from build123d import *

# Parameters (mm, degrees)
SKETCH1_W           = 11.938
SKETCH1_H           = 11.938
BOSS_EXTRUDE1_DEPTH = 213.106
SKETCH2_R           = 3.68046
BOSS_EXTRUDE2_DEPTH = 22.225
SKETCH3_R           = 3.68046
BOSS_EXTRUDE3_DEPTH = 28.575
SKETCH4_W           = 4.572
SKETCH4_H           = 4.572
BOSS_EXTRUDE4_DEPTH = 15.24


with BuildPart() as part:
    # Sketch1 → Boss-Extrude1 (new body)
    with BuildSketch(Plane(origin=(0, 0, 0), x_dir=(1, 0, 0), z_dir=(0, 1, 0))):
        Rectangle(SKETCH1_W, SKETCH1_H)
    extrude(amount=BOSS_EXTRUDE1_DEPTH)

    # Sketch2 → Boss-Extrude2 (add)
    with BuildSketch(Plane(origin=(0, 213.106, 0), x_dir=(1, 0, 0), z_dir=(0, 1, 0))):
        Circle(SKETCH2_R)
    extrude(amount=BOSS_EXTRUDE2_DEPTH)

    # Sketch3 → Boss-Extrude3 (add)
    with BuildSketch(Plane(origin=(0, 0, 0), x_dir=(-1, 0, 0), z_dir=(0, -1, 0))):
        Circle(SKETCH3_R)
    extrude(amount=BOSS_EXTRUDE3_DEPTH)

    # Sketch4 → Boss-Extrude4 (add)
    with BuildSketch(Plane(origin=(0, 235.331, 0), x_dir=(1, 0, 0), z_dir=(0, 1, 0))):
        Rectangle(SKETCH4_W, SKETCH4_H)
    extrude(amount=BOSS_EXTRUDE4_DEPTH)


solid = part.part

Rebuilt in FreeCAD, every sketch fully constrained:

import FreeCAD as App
import Part
import Sketcher
from FreeCAD import Vector
Q = App.Units.Quantity

doc = App.newDocument("Part")
params = doc.addObject("Spreadsheet::Sheet", "Params")
for row, (alias, value) in enumerate([
    ("sketch1_width", "0.47 in"),
    ("pad1_length", "8.39 in"),
    ("pad2_length", "0.875 in"),
    ("pad3_length", "1.125 in"),
    ("sketch4_width", "0.18 in"),
    ("pad4_length", "0.6 in"),
], start=1):
    params.set(f"A{row}", alias)
    params.set(f"B{row}", "=" + value)
    params.setAlias(f"B{row}", alias)

body = doc.addObject("PartDesign::Body", "Body")

sketch1 = body.newObject("Sketcher::SketchObject", "Sketch")
sketch1.AttachmentSupport = (doc.getObject("XZ_Plane"), [""])
sketch1.MapMode = "FlatFace"
sketch1.addGeometry(Part.LineSegment(Vector(-6, -6, 0), Vector(-6, 6, 0)), False)
sketch1.addGeometry(Part.LineSegment(Vector(-6, 6, 0), Vector(6, 6, 0)), False)
sketch1.addGeometry(Part.LineSegment(Vector(6, 6, 0), Vector(6, -6, 0)), False)
sketch1.addGeometry(Part.LineSegment(Vector(6, -6, 0), Vector(-6, -6, 0)), False)
sketch1.addConstraint(Sketcher.Constraint("Coincident", 0, 2, 1, 1))
sketch1.addConstraint(Sketcher.Constraint("Coincident", 1, 2, 2, 1))
sketch1.addConstraint(Sketcher.Constraint("Coincident", 2, 2, 3, 1))
sketch1.addConstraint(Sketcher.Constraint("Coincident", 3, 2, 0, 1))
sketch1.addConstraint(Sketcher.Constraint("Vertical", 0))
sketch1.addConstraint(Sketcher.Constraint("Horizontal", 1))
sketch1.addConstraint(Sketcher.Constraint("Vertical", 2))
sketch1.addConstraint(Sketcher.Constraint("Horizontal", 3))
sketch1.addConstraint(Sketcher.Constraint("Symmetric", 0, 2, 2, 2, -1, 1))
sketch1.addConstraint(Sketcher.Constraint("Equal", 3, 0))
sketch1.addConstraint(Sketcher.Constraint("DistanceX", 1, 1, 1, 2, Q("0.47 in")))
sketch1.setExpression("Constraints[10]", "Params.sketch1_width")
pad1 = body.newObject("PartDesign::Pad", "Pad")
pad1.Profile = sketch1
pad1.setExpression("Length", "Params.pad1_length")
pad1.Reversed = True

sketch2 = body.newObject("Sketcher::SketchObject", "Sketch001")
sketch2.AttachmentSupport = (doc.getObject("XZ_Plane"), [""])
sketch2.MapMode = "FlatFace"
sketch2.AttachmentOffset = App.Placement(Vector(0, 0, -8.39 * 25.4), App.Rotation())
sketch2.addGeometry(Part.Circle(Vector(0, 0, 0), Vector(0, 0, 1), 3.7), False)
sketch2.addConstraint(Sketcher.Constraint("Coincident", 0, 3, -1, 1))
sketch2.addConstraint(Sketcher.Constraint("Diameter", 0, Q("0.2898 in")))
pad2 = body.newObject("PartDesign::Pad", "Pad001")
pad2.Profile = sketch2
pad2.setExpression("Length", "Params.pad2_length")
pad2.Reversed = True

sketch3 = body.newObject("Sketcher::SketchObject", "Sketch002")
sketch3.AttachmentSupport = (doc.getObject("XZ_Plane"), [""])
sketch3.MapMode = "FlatFace"
sketch3.addGeometry(Part.Circle(Vector(0, 0, 0), Vector(0, 0, 1), 3.7), False)
sketch3.addConstraint(Sketcher.Constraint("Coincident", 0, 3, -1, 1))
sketch3.addConstraint(Sketcher.Constraint("Diameter", 0, Q("0.2898 in")))
pad3 = body.newObject("PartDesign::Pad", "Pad002")
pad3.Profile = sketch3
pad3.setExpression("Length", "Params.pad3_length")

sketch4 = body.newObject("Sketcher::SketchObject", "Sketch003")
sketch4.AttachmentSupport = (doc.getObject("XZ_Plane"), [""])
sketch4.MapMode = "FlatFace"
sketch4.AttachmentOffset = App.Placement(Vector(0, 0, -9.265 * 25.4), App.Rotation())
sketch4.addGeometry(Part.LineSegment(Vector(-2.3, -2.3, 0), Vector(-2.3, 2.3, 0)), False)
sketch4.addGeometry(Part.LineSegment(Vector(-2.3, 2.3, 0), Vector(2.3, 2.3, 0)), False)
sketch4.addGeometry(Part.LineSegment(Vector(2.3, 2.3, 0), Vector(2.3, -2.3, 0)), False)
sketch4.addGeometry(Part.LineSegment(Vector(2.3, -2.3, 0), Vector(-2.3, -2.3, 0)), False)
sketch4.addConstraint(Sketcher.Constraint("Coincident", 0, 2, 1, 1))
sketch4.addConstraint(Sketcher.Constraint("Coincident", 1, 2, 2, 1))
sketch4.addConstraint(Sketcher.Constraint("Coincident", 2, 2, 3, 1))
sketch4.addConstraint(Sketcher.Constraint("Coincident", 3, 2, 0, 1))
sketch4.addConstraint(Sketcher.Constraint("Vertical", 0))
sketch4.addConstraint(Sketcher.Constraint("Horizontal", 1))
sketch4.addConstraint(Sketcher.Constraint("Vertical", 2))
sketch4.addConstraint(Sketcher.Constraint("Horizontal", 3))
sketch4.addConstraint(Sketcher.Constraint("Symmetric", 0, 2, 2, 2, -1, 1))
sketch4.addConstraint(Sketcher.Constraint("Equal", 3, 0))
sketch4.addConstraint(Sketcher.Constraint("DistanceX", 1, 1, 1, 2, Q("0.18 in")))
sketch4.setExpression("Constraints[10]", "Params.sketch4_width")
pad4 = body.newObject("PartDesign::Pad", "Pad003")
pad4.Profile = sketch4
pad4.setExpression("Length", "Params.pad4_length")
pad4.Reversed = True

doc.recompute()
